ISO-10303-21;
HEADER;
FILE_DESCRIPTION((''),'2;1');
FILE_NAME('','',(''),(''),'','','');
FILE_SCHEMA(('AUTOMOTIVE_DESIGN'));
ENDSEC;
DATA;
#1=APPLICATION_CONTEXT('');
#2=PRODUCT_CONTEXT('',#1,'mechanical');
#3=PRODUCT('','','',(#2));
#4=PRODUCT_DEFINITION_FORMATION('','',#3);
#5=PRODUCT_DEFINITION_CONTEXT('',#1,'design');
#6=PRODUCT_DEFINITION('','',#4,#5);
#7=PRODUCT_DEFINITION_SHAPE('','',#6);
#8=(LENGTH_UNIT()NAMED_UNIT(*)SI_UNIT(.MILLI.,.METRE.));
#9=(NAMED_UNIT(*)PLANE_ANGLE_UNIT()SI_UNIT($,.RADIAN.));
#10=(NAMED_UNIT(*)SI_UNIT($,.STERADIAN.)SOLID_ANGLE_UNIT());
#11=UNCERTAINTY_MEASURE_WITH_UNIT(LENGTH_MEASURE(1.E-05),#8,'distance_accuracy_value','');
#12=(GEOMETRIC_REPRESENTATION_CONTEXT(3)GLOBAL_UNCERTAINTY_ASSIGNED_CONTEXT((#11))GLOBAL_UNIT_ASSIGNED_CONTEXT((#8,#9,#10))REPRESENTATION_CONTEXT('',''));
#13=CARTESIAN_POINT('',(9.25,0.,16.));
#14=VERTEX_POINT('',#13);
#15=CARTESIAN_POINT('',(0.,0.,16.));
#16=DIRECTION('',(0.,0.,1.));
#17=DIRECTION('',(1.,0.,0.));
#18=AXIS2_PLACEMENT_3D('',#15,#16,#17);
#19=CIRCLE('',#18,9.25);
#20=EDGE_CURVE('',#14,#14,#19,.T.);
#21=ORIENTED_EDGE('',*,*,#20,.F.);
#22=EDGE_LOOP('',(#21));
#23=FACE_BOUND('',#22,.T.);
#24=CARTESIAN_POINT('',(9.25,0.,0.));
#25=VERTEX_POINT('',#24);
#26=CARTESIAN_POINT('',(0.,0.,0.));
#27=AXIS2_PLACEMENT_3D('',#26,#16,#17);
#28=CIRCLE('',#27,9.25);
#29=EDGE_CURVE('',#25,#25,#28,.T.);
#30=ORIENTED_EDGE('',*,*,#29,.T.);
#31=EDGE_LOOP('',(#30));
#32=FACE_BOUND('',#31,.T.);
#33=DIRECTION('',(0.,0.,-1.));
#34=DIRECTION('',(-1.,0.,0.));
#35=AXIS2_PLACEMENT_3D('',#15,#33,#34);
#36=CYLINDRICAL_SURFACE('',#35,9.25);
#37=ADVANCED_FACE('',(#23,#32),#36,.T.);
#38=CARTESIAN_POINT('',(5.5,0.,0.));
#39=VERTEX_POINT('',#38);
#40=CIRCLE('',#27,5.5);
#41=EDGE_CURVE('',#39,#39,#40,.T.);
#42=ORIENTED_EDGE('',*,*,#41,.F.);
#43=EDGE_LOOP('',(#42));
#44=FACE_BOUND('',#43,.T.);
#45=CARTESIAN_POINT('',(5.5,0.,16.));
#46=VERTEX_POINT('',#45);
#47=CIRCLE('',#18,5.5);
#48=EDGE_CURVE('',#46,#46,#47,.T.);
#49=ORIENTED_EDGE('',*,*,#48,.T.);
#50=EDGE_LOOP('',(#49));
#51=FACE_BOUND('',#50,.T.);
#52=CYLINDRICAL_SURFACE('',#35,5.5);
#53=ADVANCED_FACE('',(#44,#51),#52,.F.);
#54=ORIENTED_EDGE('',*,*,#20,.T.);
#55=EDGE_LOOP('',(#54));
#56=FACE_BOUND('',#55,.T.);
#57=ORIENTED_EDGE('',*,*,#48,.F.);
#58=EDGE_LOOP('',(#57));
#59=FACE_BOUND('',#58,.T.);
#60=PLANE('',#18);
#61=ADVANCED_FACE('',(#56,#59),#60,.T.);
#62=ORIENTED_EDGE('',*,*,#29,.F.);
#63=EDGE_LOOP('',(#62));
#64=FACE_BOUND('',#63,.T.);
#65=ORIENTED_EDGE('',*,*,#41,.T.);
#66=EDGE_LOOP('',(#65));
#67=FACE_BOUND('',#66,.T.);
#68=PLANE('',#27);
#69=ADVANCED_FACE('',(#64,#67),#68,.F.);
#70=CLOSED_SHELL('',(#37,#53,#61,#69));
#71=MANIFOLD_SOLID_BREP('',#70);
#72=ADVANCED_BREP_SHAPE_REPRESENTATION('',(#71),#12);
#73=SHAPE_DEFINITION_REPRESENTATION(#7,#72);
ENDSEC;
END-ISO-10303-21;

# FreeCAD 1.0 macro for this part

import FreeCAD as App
import Part
import Sketcher
from FreeCAD import Vector

doc = App.newDocument("Part")
body = doc.addObject("PartDesign::Body", "Body")

# Sketch on XY plane
sketch1 = body.newObject("Sketcher::SketchObject", "Sketch")
sketch1.AttachmentSupport = (doc.getObject("XY_Plane"), [""])
sketch1.MapMode = "FlatFace"
sketch1.addGeometry([
    Part.Circle(Vector(0, 0, 0), Vector(0, 0, 1), 9),
    Part.Circle(Vector(0, 0, 0), Vector(0, 0, 1), 6),
], False)
sketch1.addConstraint([
    Sketcher.Constraint("Coincident", 0, 3, -1, 1),
    Sketcher.Constraint("Coincident", 1, 3, -1, 1),
    Sketcher.Constraint("Diameter", 1, 11.0),
    Sketcher.Constraint("Diameter", 0, 18.5),
])
pad1 = body.newObject("PartDesign::Pad", "Pad")
pad1.Profile = sketch1
pad1.Length = 16

# Sketch on XY plane
sketch2 = body.newObject("Sketcher::SketchObject", "Sketch001")
sketch2.AttachmentSupport = (doc.getObject("XY_Plane"), [""])
sketch2.MapMode = "FlatFace"
sketch2.addGeometry([
    Part.Circle(Vector(0, 0, 0), Vector(0, 0, 1), 9),
    Part.Circle(Vector(0, 0, 0), Vector(0, 0, 1), 6),
], False)
sketch2.addConstraint([
    Sketcher.Constraint("Coincident", 0, 3, -1, 1),
    Sketcher.Constraint("Coincident", 1, 3, -1, 1),
    Sketcher.Constraint("Diameter", 1, 11.0),
    Sketcher.Constraint("Diameter", 0, 18.5),
])
pad2 = body.newObject("PartDesign::Pad", "Pad001")
pad2.Profile = sketch2
pad2.Length = 1.5

doc.recompute()
